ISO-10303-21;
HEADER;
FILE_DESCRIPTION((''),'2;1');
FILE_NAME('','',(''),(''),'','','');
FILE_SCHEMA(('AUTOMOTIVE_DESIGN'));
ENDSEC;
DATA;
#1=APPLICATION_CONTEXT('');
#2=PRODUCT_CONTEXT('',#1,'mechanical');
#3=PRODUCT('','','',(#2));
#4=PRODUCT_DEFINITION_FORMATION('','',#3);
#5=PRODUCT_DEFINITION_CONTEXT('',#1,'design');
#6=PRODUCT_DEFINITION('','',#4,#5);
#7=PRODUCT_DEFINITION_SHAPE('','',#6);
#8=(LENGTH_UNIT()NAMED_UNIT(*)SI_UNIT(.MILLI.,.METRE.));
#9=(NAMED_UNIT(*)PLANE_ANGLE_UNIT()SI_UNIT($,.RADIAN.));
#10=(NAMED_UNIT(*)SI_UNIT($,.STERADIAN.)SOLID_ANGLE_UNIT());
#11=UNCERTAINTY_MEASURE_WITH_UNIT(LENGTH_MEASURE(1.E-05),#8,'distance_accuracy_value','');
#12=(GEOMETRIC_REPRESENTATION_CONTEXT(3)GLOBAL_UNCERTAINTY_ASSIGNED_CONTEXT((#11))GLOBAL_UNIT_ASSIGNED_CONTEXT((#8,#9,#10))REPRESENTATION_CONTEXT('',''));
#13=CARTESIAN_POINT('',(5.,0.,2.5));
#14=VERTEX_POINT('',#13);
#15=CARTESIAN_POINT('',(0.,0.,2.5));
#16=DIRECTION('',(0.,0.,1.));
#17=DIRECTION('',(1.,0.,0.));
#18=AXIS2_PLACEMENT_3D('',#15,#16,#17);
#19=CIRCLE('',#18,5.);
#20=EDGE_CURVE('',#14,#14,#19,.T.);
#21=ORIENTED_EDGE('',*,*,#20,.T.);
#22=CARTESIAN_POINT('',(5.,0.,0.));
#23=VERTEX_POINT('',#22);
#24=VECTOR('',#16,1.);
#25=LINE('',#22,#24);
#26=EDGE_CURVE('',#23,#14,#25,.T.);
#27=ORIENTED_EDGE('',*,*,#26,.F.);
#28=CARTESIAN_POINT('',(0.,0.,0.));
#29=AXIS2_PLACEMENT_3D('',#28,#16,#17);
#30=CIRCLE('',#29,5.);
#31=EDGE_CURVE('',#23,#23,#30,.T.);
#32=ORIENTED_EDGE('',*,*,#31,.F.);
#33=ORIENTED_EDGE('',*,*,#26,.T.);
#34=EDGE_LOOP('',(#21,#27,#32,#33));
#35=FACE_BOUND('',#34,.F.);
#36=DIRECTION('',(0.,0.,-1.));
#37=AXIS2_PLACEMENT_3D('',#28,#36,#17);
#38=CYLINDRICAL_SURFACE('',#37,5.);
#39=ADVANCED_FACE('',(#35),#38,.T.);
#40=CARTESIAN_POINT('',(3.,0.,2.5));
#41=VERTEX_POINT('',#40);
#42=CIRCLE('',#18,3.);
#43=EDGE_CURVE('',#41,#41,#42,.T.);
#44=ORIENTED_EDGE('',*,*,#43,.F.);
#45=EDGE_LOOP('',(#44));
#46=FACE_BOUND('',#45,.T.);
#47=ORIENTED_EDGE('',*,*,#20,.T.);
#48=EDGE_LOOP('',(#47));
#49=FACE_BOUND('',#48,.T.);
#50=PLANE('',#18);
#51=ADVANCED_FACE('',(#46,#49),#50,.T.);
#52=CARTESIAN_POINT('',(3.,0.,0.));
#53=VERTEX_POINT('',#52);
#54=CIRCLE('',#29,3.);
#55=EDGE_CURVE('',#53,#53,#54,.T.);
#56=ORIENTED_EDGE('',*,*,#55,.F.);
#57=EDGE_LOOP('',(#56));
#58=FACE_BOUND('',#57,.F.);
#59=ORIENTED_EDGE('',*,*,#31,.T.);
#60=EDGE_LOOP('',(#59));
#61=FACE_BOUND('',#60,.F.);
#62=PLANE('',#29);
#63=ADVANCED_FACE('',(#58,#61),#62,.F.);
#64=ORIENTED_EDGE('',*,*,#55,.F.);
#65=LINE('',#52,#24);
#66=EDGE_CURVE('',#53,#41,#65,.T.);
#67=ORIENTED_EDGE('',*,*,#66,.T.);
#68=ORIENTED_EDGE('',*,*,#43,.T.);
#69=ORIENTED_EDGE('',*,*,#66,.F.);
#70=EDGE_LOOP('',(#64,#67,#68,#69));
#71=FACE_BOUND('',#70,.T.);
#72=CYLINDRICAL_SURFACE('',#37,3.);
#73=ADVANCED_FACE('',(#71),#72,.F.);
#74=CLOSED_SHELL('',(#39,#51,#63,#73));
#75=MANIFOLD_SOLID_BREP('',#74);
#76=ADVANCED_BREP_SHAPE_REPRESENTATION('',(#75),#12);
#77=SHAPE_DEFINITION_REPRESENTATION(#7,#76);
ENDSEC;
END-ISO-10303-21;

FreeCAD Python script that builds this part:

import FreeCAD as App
import Part
import Sketcher

doc = App.newDocument("Part")
params = doc.addObject("Spreadsheet::Sheet", "Params")
for row, (alias, value) in enumerate([
    ("sketch1_diameter", "10 mm"),
    ("sketch1_diameter2", "6 mm"),
    ("pad1_length", "2.5 mm"),
], start=1):
    params.set(f"A{row}", alias)
    params.set(f"B{row}", "=" + value)
    params.setAlias(f"B{row}", alias)

body = doc.addObject("PartDesign::Body", "Body")

sketch1 = doc.addObject("Sketcher::SketchObject", "Sketch")
body.addObject(sketch1)
sketch1.AttachmentSupport = (doc.XY_Plane, [""])
sketch1.MapMode = "FlatFace"
sketch1.addGeometry([
    Part.Circle(App.Vector(0, 0, 0), App.Vector(0, 0, 1), 5),
    Part.Circle(App.Vector(0, 0, 0), App.Vector(0, 0, 1), 3),
], False)
sketch1.addConstraint([
    Sketcher.Constraint("Coincident", 0, 3, -1, 1),
    Sketcher.Constraint("Coincident", 1, 3, -1, 1),
    Sketcher.Constraint("Diameter", 0, 10.0),
    Sketcher.Constraint("Diameter", 1, 6.0),
])
sketch1.setExpression("Constraints[2]", "Params.sketch1_diameter")
sketch1.setExpression("Constraints[3]", "Params.sketch1_diameter2")
pad1 = doc.addObject("PartDesign::Pad", "Pad")
body.addObject(pad1)
pad1.Profile = sketch1
pad1.setExpression("Length", "Params.pad1_length")

doc.recompute()
